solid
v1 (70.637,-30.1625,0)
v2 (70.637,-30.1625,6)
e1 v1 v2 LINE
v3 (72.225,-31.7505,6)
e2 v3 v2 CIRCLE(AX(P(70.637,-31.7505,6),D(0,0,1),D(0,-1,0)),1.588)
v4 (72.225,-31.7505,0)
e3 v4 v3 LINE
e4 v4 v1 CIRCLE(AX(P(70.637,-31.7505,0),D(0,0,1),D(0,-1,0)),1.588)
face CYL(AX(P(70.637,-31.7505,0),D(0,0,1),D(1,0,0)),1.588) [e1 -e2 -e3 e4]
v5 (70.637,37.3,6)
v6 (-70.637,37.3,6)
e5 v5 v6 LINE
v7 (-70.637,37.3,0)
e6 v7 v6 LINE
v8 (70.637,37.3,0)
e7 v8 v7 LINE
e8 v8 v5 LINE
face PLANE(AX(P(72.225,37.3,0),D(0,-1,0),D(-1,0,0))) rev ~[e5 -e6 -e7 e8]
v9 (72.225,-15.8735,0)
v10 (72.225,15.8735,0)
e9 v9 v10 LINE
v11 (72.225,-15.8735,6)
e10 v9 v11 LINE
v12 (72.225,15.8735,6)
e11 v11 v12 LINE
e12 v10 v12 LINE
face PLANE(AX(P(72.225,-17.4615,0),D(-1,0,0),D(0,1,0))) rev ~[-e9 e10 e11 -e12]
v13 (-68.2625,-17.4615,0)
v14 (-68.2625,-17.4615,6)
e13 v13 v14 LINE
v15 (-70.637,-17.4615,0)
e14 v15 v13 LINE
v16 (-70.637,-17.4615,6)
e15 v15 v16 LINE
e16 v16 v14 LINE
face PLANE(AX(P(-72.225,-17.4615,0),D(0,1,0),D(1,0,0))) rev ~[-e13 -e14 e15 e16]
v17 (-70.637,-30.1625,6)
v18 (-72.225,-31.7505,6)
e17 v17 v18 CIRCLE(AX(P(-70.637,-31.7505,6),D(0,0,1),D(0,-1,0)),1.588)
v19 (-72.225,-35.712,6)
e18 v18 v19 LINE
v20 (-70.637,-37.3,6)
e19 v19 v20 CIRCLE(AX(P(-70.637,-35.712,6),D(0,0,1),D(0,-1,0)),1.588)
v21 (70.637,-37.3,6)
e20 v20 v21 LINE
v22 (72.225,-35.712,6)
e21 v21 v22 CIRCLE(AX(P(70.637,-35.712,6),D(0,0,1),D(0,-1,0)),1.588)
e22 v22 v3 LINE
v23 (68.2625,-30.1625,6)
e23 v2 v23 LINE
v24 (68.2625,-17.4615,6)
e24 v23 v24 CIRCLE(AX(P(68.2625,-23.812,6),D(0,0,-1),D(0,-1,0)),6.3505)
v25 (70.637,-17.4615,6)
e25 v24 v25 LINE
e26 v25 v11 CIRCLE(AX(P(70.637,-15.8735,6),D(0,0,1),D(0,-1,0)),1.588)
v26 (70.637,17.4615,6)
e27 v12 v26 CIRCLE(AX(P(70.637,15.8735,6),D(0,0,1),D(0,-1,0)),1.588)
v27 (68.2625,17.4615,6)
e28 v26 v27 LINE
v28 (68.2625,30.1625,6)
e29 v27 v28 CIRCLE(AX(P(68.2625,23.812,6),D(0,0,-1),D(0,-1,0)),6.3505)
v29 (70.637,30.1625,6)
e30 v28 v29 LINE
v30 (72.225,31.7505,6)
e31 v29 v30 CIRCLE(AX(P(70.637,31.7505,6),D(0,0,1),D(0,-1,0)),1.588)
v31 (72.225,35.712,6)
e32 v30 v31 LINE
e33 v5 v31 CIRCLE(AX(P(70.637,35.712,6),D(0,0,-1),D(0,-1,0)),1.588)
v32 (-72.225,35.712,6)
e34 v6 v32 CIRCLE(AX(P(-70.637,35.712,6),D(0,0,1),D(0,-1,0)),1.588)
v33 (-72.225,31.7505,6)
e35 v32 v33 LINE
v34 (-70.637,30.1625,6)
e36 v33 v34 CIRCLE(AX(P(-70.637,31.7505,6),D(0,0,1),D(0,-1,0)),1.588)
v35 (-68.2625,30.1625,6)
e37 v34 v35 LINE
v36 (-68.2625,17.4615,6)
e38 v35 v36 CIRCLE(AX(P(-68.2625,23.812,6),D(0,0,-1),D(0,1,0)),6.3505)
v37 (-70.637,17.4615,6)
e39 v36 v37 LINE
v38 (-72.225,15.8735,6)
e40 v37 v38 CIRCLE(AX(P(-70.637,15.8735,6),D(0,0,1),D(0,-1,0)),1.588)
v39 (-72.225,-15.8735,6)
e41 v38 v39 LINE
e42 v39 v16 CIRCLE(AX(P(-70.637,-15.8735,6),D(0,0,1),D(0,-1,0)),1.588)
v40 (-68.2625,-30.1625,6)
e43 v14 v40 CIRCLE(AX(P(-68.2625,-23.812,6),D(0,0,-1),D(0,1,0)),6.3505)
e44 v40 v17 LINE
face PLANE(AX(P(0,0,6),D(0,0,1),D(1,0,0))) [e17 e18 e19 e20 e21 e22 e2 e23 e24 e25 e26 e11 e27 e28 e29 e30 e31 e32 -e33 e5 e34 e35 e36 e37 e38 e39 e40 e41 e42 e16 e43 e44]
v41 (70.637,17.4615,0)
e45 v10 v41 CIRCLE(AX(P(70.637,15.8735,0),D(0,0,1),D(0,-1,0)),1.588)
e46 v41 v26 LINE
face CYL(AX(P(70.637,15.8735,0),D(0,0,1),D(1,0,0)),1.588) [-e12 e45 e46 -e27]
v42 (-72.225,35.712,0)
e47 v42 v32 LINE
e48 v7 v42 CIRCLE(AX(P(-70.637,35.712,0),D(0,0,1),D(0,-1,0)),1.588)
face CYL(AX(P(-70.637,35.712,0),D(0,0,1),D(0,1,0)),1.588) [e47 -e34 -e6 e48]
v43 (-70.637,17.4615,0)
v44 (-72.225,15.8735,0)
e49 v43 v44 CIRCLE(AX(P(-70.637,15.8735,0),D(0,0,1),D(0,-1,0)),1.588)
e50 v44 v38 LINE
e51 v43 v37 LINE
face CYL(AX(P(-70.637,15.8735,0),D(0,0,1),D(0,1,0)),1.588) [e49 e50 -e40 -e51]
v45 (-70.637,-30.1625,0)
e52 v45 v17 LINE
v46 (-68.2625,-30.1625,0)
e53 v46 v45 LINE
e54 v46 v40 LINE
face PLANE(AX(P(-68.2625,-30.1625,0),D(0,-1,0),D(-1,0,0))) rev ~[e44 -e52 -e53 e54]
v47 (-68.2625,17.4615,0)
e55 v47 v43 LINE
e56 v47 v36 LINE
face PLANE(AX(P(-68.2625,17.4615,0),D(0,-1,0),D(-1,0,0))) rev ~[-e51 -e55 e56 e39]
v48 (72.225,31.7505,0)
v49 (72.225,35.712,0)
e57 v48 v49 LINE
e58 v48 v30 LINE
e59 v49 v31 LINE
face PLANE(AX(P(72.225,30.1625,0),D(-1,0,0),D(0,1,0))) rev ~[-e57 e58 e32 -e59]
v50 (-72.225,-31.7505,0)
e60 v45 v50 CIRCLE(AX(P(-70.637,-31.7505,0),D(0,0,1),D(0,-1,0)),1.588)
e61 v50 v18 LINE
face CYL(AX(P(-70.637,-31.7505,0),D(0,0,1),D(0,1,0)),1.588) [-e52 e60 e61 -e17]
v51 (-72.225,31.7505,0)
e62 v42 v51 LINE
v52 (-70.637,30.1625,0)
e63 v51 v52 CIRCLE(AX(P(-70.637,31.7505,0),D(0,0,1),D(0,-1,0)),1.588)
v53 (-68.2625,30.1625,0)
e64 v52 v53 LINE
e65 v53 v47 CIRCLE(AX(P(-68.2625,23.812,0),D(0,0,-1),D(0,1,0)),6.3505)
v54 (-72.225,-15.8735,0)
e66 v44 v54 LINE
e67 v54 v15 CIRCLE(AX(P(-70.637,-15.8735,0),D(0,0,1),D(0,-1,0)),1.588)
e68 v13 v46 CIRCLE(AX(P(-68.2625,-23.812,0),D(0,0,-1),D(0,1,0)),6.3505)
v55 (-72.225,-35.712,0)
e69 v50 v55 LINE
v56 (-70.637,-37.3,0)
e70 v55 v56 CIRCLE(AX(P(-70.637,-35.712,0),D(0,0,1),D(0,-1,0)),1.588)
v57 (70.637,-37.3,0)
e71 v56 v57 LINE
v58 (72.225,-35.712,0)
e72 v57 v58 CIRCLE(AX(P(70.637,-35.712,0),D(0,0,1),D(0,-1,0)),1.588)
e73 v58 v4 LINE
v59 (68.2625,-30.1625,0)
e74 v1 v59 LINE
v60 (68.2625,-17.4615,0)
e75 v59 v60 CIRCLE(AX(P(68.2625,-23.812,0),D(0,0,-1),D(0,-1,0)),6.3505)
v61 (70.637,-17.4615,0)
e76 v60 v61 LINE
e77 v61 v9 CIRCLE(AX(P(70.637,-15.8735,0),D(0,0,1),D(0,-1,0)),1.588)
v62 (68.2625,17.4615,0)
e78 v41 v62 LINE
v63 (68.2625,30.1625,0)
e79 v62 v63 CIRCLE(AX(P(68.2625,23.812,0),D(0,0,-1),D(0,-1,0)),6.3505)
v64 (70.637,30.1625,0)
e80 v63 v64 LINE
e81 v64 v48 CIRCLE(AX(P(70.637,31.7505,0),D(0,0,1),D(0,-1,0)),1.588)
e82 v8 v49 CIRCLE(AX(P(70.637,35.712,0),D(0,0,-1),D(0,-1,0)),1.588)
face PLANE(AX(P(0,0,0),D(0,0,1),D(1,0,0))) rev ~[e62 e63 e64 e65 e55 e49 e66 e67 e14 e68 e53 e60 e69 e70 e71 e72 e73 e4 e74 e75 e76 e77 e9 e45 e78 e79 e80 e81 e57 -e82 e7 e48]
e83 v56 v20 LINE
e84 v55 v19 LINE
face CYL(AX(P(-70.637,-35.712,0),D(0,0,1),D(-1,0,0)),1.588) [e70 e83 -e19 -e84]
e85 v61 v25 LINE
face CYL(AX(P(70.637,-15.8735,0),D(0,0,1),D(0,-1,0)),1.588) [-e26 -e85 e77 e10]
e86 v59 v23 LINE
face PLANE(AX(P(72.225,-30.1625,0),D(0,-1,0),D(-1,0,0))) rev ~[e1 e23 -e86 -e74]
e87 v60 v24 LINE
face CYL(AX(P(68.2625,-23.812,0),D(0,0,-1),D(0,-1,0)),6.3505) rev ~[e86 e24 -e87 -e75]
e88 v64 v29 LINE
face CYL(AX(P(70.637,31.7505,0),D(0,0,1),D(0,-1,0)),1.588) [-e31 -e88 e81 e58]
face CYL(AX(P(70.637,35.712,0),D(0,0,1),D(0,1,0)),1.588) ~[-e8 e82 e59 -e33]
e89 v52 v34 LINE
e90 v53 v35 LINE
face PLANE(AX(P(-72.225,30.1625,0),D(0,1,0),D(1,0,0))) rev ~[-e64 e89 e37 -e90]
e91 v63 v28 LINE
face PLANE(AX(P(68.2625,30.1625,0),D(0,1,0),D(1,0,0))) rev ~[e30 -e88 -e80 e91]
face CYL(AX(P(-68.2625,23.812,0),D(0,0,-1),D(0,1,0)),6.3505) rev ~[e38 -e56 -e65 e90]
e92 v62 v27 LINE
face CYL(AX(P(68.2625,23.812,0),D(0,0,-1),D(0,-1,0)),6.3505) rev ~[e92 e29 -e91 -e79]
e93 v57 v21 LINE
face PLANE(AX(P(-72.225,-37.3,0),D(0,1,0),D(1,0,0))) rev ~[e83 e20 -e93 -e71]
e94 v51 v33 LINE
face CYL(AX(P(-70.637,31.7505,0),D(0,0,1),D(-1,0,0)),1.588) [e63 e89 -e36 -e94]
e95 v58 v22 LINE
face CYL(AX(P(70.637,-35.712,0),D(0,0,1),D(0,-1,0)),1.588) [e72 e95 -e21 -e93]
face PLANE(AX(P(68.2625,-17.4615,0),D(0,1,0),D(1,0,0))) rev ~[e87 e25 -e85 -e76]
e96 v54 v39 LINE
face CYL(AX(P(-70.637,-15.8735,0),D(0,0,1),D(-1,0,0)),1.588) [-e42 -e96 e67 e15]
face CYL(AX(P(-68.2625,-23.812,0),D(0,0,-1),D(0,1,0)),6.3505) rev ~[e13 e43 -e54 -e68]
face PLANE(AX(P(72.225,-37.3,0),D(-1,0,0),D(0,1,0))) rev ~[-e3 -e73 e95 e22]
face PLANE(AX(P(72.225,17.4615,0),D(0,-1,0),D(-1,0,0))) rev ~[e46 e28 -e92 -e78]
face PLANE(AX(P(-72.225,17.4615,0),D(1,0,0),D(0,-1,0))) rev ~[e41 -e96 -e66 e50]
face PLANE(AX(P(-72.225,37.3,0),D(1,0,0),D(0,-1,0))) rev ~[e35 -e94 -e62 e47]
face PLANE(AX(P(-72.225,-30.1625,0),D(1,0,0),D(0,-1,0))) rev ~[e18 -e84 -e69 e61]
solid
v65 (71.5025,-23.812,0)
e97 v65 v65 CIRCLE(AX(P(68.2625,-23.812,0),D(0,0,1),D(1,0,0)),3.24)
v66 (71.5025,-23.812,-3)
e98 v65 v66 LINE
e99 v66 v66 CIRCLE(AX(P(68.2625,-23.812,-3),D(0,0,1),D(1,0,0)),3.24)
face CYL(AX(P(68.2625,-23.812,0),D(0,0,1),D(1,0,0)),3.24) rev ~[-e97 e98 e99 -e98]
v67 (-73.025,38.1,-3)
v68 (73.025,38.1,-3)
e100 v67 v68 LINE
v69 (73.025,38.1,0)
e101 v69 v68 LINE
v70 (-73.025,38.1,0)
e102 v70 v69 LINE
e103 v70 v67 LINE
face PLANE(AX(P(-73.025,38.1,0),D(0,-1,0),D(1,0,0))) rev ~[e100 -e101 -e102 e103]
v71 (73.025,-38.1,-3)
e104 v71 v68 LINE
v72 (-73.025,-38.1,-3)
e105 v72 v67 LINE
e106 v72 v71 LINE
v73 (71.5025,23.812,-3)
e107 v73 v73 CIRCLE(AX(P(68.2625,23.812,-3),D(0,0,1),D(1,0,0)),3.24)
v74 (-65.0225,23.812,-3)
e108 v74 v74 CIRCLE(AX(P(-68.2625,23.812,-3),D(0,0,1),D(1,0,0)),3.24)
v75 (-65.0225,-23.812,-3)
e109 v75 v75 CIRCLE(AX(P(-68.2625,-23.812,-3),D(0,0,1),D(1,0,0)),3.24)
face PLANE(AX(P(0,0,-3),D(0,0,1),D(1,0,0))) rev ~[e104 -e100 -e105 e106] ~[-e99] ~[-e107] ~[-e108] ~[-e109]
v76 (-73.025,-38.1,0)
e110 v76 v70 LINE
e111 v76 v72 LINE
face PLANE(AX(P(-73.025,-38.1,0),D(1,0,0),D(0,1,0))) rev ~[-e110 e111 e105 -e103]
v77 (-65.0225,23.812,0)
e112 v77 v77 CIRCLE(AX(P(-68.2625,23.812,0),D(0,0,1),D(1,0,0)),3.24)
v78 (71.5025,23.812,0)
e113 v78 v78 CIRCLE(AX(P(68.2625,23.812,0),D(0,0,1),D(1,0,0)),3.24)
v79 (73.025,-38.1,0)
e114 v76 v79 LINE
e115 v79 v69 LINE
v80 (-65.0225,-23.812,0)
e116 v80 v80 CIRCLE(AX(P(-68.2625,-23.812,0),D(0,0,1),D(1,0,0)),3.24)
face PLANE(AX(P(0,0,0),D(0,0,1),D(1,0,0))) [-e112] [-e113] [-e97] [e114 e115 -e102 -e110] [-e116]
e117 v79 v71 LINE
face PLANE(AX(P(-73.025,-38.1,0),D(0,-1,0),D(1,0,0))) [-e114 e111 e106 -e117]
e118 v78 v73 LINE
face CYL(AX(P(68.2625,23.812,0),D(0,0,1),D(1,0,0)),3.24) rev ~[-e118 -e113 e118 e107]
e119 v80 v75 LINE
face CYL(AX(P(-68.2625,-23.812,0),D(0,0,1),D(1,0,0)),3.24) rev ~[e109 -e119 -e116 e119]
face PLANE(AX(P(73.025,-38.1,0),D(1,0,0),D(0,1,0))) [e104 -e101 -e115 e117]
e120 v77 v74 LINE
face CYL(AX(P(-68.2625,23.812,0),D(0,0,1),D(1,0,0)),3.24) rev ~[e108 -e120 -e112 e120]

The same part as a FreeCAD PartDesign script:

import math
import FreeCAD as App
import Part
import Sketcher


def edges_at(feature, points):
    """Names of the edges that pass closest to the given points."""
    edges = feature.Shape.Edges
    near = lambda p: min(range(len(edges)), key=lambda i: edges[i].distToShape(Part.Vertex(*p))[0])
    return sorted({f"Edge{near(p) + 1}" for p in points})

doc = App.newDocument("Part")
body = doc.addObject("PartDesign::Body", "Body")

# Sketch on XY plane
sketch1 = body.newObject("Sketcher::SketchObject", "Sketch")
sketch1.AttachmentSupport = (doc.getObject("XY_Plane"), [""])
sketch1.MapMode = "FlatFace"
sketch1.addGeometry([
    Part.LineSegment(App.Vector(-73, 38.1, 0), App.Vector(-73, -38.1, 0)),  # 0
    Part.LineSegment(App.Vector(-73, -38.1, 0), App.Vector(73, -38.1, 0)),  # 1
    Part.LineSegment(App.Vector(73, -38.1, 0), App.Vector(73, 38.1, 0)),  # 2
    Part.LineSegment(App.Vector(73, 38.1, 0), App.Vector(-73, 38.1, 0)),  # 3
    Part.Circle(App.Vector(-68.3, -23.8, 0), App.Vector(0, 0, 1), 3.2),  # 4
    Part.Circle(App.Vector(68.3, -23.8, 0), App.Vector(0, 0, 1), 3.2),  # 5
    Part.Circle(App.Vector(-68.3, 23.8, 0), App.Vector(0, 0, 1), 3.2),  # 6
    Part.Circle(App.Vector(68.3, 23.8, 0), App.Vector(0, 0, 1), 3.2),  # 7
], False)
sketch1.addConstraint([
    Sketcher.Constraint("Coincident", 0, 2, 1, 1),
    Sketcher.Constraint("Coincident", 1, 2, 2, 1),
    Sketcher.Constraint("Coincident", 2, 2, 3, 1),
    Sketcher.Constraint("Coincident", 3, 2, 0, 1),
    Sketcher.Constraint("Vertical", 0),
    Sketcher.Constraint("Horizontal", 1),
    Sketcher.Constraint("Vertical", 2),
    Sketcher.Constraint("Horizontal", 3),
    Sketcher.Constraint("Equal", 4, 5),
    Sketcher.Constraint("Equal", 5, 6),
    Sketcher.Constraint("Equal", 6, 7),
    Sketcher.Constraint("Symmetric", 5, 3, 6, 3, -1, 1),
    Sketcher.Constraint("Symmetric", 4, 3, 7, 3, -1, 1),
    Sketcher.Constraint("Symmetric", 0, 2, 2, 2, -1, 1),
    Sketcher.Constraint("Symmetric", 4, 3, 5, 3, -2),
    Sketcher.Constraint("Diameter", 4, 6.48),
    Sketcher.Constraint("DistanceY", 0, 2, 0, 1, 76.2),
    Sketcher.Constraint("DistanceX", 1, 1, 1, 2, 146.05),
    Sketcher.Constraint("DistanceY", 4, 3, -1, 1, 23.812),
    Sketcher.Constraint("DistanceX", 4, 3, 5, 3, 136.525),
])
pad1 = body.newObject("PartDesign::Pad", "Pad")
pad1.Profile = sketch1
pad1.Length = 3
pad1.Reversed = True
body2 = doc.addObject("PartDesign::Body", "Body001")

# Sketch on XY plane
sketch2 = body2.newObject("Sketcher::SketchObject", "Sketch001")
sketch2.AttachmentSupport = (doc.getObject("XY_Plane001"), [""])
sketch2.MapMode = "FlatFace"
sketch2.addGeometry([
    Part.LineSegment(App.Vector(72.2, 37.3, 0), App.Vector(-72.2, 37.3, 0)),  # 0
    Part.LineSegment(App.Vector(-72.2, 37.3, 0), App.Vector(-72.2, 30.2, 0)),  # 1
    Part.LineSegment(App.Vector(-72.2, 30.2, 0), App.Vector(-68.3, 30.2, 0)),  # 2
    Part.ArcOfCircle(Part.Circle(App.Vector(-68.3, 23.8, 0), App.Vector(0, 0, 1), 6.4), math.radians(-90), math.radians(90)),  # 3
    Part.LineSegment(App.Vector(-68.3, 17.5, 0), App.Vector(-72.2, 17.5, 0)),  # 4
    Part.LineSegment(App.Vector(-72.2, 17.5, 0), App.Vector(-72.2, -17.5, 0)),  # 5
    Part.LineSegment(App.Vector(-72.2, -17.5, 0), App.Vector(-68.3, -17.5, 0)),  # 6
    Part.ArcOfCircle(Part.Circle(App.Vector(-68.3, -23.8, 0), App.Vector(0, 0, 1), 6.4), math.radians(-90), math.radians(90)),  # 7
    Part.LineSegment(App.Vector(-68.3, -30.2, 0), App.Vector(-72.2, -30.2, 0)),  # 8
    Part.LineSegment(App.Vector(-72.2, -30.2, 0), App.Vector(-72.2, -37.3, 0)),  # 9
    Part.LineSegment(App.Vector(-72.2, -37.3, 0), App.Vector(72.2, -37.3, 0)),  # 10
    Part.LineSegment(App.Vector(72.2, -37.3, 0), App.Vector(72.2, -30.2, 0)),  # 11
    Part.LineSegment(App.Vector(72.2, -30.2, 0), App.Vector(68.3, -30.2, 0)),  # 12
    Part.ArcOfCircle(Part.Circle(App.Vector(68.3, -23.8, 0), App.Vector(0, 0, 1), 6.4), math.radians(90), math.radians(270)),  # 13
    Part.LineSegment(App.Vector(68.3, -17.5, 0), App.Vector(72.2, -17.5, 0)),  # 14
    Part.LineSegment(App.Vector(72.2, -17.5, 0), App.Vector(72.2, 17.5, 0)),  # 15
    Part.LineSegment(App.Vector(72.2, 17.5, 0), App.Vector(68.3, 17.5, 0)),  # 16
    Part.ArcOfCircle(Part.Circle(App.Vector(68.3, 23.8, 0), App.Vector(0, 0, 1), 6.4), math.radians(90), math.radians(270)),  # 17
    Part.LineSegment(App.Vector(68.3, 30.2, 0), App.Vector(72.2, 30.2, 0)),  # 18
    Part.LineSegment(App.Vector(72.2, 30.2, 0), App.Vector(72.2, 37.3, 0)),  # 19
], False)
sketch2.addConstraint([
    Sketcher.Constraint("Coincident", 0, 2, 1, 1),
    Sketcher.Constraint("Coincident", 1, 2, 2, 1),
    Sketcher.Constraint("Tangent", 2, 2, 3, 2),
    Sketcher.Constraint("Tangent", 3, 1, 4, 1),
    Sketcher.Constraint("Coincident", 4, 2, 5, 1),
    Sketcher.Constraint("Coincident", 5, 2, 6, 1),
    Sketcher.Constraint("Tangent", 6, 2, 7, 2),
    Sketcher.Constraint("Tangent", 7, 1, 8, 1),
    Sketcher.Constraint("Coincident", 8, 2, 9, 1),
    Sketcher.Constraint("Coincident", 9, 2, 10, 1),
    Sketcher.Constraint("Coincident", 10, 2, 11, 1),
    Sketcher.Constraint("Coincident", 11, 2, 12, 1),
    Sketcher.Constraint("Tangent", 12, 2, 13, 2),
    Sketcher.Constraint("Tangent", 13, 1, 14, 1),
    Sketcher.Constraint("Coincident", 14, 2, 15, 1),
    Sketcher.Constraint("Coincident", 15, 2, 16, 1),
    Sketcher.Constraint("Tangent", 16, 2, 17, 2),
    Sketcher.Constraint("Tangent", 17, 1, 18, 1),
    Sketcher.Constraint("Coincident", 18, 2, 19, 1),
    Sketcher.Constraint("Coincident", 19, 2, 0, 1),
    Sketcher.Constraint("Horizontal", 0),
    Sketcher.Constraint("Vertical", 1),
    Sketcher.Constraint("Horizontal", 2),
    Sketcher.Constraint("Horizontal", 4),
    Sketcher.Constraint("Vertical", 5),
    Sketcher.Constraint("Horizontal", 6),
    Sketcher.Constraint("Horizontal", 8),
    Sketcher.Constraint("Vertical", 9),
    Sketcher.Constraint("Horizontal", 10),
    Sketcher.Constraint("Vertical", 11),
    Sketcher.Constraint("Horizontal", 12),
    Sketcher.Constraint("Horizontal", 14),
    Sketcher.Constraint("Vertical", 15),
    Sketcher.Constraint("Horizontal", 16),
    Sketcher.Constraint("Horizontal", 18),
    Sketcher.Constraint("Vertical", 19),
    Sketcher.Constraint("Equal", 3, 7),
    Sketcher.Constraint("Equal", 7, 13),
    Sketcher.Constraint("Equal", 13, 17),
    Sketcher.Constraint("Symmetric", 3, 3, 13, 3, -1, 1),
    Sketcher.Constraint("Symmetric", 7, 3, 17, 3, -1, 1),
    Sketcher.Constraint("Symmetric", 0, 2, 10, 2, -1, 1),
    Sketcher.Constraint("Symmetric", 7, 3, 13, 3, -2),
    Sketcher.Constraint("Vertical", 1, 2, 4, 2),
    Sketcher.Constraint("Vertical", 5, 2, 8, 2),
    Sketcher.Constraint("Vertical", 11, 2, 14, 2),
    Sketcher.Constraint("Vertical", 15, 2, 18, 2),
    Sketcher.Constraint("DistanceX", 0, 2, 0, 1, 144.45),
    Sketcher.Constraint("DistanceY", -1, 1, 0, 2, 37.3),
    Sketcher.Constraint("Radius", 3, 6.3505),
    Sketcher.Constraint("DistanceY", 5, 2, 5, 1, 34.923),
    Sketcher.Constraint("DistanceX", 2, 1, 2, 2, 3.9625),
])
pad2 = body2.newObject("PartDesign::Pad", "Pad001")
pad2.Profile = sketch2
pad2.Length = 6
doc.recompute()

fillet = body2.newObject("PartDesign::Fillet", "Fillet")
fillet.Base = (pad2, edges_at(pad2, [
    (-72.225, 37.3, 3),
    (-72.225, 30.163, 3),
    (-72.225, 17.462, 3),
    (-72.225, -17.462, 3),
    (-72.225, -30.163, 3),
    (-72.225, -37.3, 3),
    (72.225, 37.3, 3),
    (72.225, 30.163, 3),
    (72.225, 17.462, 3),
    (72.225, -17.462, 3),
    (72.225, -30.163, 3),
    (72.225, -37.3, 3),
]))
fillet.Radius = 1.588

doc.recompute()
